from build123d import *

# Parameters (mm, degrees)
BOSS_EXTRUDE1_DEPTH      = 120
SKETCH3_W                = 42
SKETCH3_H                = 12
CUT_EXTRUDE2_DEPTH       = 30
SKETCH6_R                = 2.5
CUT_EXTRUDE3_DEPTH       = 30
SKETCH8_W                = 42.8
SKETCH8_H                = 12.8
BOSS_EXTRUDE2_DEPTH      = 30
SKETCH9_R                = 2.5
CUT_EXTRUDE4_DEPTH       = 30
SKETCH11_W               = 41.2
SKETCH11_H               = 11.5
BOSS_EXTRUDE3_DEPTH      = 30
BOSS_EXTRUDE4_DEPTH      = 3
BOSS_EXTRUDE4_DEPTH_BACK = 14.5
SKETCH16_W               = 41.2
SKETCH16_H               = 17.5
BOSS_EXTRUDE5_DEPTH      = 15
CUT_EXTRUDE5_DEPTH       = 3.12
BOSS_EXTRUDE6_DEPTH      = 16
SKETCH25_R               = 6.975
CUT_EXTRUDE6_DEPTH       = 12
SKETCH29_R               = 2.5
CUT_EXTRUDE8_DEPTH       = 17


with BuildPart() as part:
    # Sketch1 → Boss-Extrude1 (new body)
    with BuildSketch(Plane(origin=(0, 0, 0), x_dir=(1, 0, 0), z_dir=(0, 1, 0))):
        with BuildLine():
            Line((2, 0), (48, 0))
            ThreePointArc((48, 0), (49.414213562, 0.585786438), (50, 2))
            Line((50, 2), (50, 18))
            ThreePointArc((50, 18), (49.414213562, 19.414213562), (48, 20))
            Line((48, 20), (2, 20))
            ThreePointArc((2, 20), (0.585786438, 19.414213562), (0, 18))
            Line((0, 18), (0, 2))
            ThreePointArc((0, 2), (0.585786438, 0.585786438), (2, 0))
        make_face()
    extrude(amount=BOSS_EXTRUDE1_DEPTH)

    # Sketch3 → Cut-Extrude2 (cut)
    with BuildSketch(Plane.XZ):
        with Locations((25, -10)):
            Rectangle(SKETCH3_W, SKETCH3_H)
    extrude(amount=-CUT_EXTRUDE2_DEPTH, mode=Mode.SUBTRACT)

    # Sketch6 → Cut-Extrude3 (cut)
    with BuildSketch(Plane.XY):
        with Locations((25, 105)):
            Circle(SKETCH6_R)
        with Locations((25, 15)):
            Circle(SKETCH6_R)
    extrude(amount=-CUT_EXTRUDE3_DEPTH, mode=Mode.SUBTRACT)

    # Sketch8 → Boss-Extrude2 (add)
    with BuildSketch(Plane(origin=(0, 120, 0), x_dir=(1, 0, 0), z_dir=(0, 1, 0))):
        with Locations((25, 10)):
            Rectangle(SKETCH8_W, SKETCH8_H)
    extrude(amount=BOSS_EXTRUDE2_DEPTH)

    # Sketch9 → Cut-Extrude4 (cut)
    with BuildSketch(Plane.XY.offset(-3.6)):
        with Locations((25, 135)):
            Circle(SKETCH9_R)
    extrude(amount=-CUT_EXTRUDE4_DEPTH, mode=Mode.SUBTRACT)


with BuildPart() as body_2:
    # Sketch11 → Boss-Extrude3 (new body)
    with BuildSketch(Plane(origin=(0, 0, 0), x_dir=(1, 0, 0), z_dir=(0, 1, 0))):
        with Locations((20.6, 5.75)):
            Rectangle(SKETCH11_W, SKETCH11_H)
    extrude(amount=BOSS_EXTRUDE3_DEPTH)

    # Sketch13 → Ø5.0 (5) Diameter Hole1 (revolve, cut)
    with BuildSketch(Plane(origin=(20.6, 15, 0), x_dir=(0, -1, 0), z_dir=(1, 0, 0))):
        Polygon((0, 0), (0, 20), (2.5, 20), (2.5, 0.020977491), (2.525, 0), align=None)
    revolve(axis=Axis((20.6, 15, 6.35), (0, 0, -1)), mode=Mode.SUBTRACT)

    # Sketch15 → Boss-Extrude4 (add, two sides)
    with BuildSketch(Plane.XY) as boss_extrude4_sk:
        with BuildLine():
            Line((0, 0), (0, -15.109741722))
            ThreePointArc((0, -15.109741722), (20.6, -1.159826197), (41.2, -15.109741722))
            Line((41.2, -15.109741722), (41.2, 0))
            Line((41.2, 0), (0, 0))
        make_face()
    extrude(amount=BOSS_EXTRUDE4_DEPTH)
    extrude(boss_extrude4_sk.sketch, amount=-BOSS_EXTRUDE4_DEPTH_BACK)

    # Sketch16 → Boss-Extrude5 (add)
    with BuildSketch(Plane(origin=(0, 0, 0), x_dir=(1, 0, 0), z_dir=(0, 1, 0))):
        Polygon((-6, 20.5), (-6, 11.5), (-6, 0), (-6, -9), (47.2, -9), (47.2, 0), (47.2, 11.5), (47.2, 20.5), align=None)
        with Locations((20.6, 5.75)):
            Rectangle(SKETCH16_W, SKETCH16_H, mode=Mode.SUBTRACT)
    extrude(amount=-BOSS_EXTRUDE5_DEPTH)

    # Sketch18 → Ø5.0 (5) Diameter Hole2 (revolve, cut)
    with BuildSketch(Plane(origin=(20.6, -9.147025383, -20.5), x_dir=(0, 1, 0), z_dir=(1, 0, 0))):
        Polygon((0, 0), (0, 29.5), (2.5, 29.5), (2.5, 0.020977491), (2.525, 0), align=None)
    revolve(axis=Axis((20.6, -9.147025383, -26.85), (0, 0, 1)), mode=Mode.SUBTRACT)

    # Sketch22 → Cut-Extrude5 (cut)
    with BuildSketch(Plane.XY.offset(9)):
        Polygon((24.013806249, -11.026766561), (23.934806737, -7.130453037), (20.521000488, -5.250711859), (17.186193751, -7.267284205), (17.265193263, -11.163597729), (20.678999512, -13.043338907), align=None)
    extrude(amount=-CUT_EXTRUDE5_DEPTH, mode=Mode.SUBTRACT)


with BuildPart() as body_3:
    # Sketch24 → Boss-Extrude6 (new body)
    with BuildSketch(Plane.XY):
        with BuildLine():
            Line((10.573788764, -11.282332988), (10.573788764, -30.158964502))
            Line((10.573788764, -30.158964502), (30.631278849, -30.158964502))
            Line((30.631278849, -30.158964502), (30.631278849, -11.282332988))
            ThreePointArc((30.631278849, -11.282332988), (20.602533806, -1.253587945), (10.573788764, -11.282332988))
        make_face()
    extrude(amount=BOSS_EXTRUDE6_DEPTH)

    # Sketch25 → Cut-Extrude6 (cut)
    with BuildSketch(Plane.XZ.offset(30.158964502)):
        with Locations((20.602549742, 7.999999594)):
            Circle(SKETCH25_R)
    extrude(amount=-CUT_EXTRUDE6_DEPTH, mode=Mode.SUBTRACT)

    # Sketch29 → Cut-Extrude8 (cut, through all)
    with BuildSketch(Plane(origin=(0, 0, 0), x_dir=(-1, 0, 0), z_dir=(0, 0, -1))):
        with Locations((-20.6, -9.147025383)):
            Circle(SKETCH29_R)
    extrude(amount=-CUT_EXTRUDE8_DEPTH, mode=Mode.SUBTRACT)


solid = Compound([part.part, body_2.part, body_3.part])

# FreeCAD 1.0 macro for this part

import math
import FreeCAD as App
import Part
import Sketcher

V = App.Vector
Q = App.Units.Quantity


def add_polygon(sketch, points):
    """Adds a closed chain of lines whose ends are joined by coincident constraints."""
    first, n = sketch.GeometryCount, len(points)
    for a, b in zip(points, points[1:] + points[:1]):
        sketch.addGeometry(Part.LineSegment(App.Vector(*a, 0), App.Vector(*b, 0)), False)
    for i in range(n):
        sketch.addConstraint(Sketcher.Constraint("Coincident", first + i, 2, first + (i + 1) % n, 1))

doc = App.newDocument("Part")
body = doc.addObject("PartDesign::Body", "Body")

sketch1 = doc.addObject("Sketcher::SketchObject", "Sketch")
body.addObject(sketch1)
sketch1.AttachmentSupport = (doc.XZ_Plane, [""])
sketch1.MapMode = "FlatFace"
sketch1.addGeometry([
    Part.LineSegment(V(2, 0, 0), V(48, 0, 0)),
    Part.ArcOfCircle(Part.Circle(V(48, -2, 0), V(0, 0, 1), 2), math.radians(0), math.radians(90)),
    Part.LineSegment(V(50, -2, 0), V(50, -18, 0)),
    Part.ArcOfCircle(Part.Circle(V(48, -18, 0), V(0, 0, 1), 2), math.radians(-90), math.radians(0)),
    Part.LineSegment(V(48, -20, 0), V(2, -20, 0)),
    Part.ArcOfCircle(Part.Circle(V(2, -18, 0), V(0, 0, 1), 2), math.radians(-180), math.radians(-90)),
    Part.LineSegment(V(0, -18, 0), V(0, -2, 0)),
    Part.ArcOfCircle(Part.Circle(V(2, -2, 0), V(0, 0, 1), 2), math.radians(90), math.radians(180)),
], False)
sketch1.addConstraint([
    Sketcher.Constraint("Tangent", 0, 2, 1, 2),
    Sketcher.Constraint("Tangent", 1, 1, 2, 1),
    Sketcher.Constraint("Tangent", 2, 2, 3, 2),
    Sketcher.Constraint("Tangent", 3, 1, 4, 1),
    Sketcher.Constraint("Tangent", 4, 2, 5, 2),
    Sketcher.Constraint("Tangent", 5, 1, 6, 1),
    Sketcher.Constraint("Tangent", 6, 2, 7, 2),
    Sketcher.Constraint("Tangent", 7, 1, 0, 1),
    Sketcher.Constraint("Horizontal", 0),
    Sketcher.Constraint("Vertical", 2),
    Sketcher.Constraint("Horizontal", 4),
    Sketcher.Constraint("Vertical", 6),
    Sketcher.Constraint("Equal", 1, 3),
    Sketcher.Constraint("Equal", 3, 5),
    Sketcher.Constraint("Equal", 5, 7),
    Sketcher.Constraint("PointOnObject", 0, 2, -1),
    Sketcher.Constraint("PointOnObject", 5, 1, -2),
    Sketcher.Constraint("Radius", 1, Q("2 mm")),
    Sketcher.Constraint("DistanceX", 0, 1, 0, 2, Q("46 mm")),
    Sketcher.Constraint("DistanceY", 2, 2, 2, 1, Q("16 mm")),
])
pad1 = doc.addObject("PartDesign::Pad", "Pad")
body.addObject(pad1)
pad1.Profile = sketch1
pad1.Length = 120
pad1.Reversed = True

sketch2 = doc.addObject("Sketcher::SketchObject", "Sketch001")
body.addObject(sketch2)
sketch2.AttachmentSupport = (doc.XZ_Plane, [""])
sketch2.MapMode = "FlatFace"
add_polygon(sketch2, [(4, -4), (4, -16), (46, -16), (46, -4)])
sketch2.addConstraint([
    Sketcher.Constraint("Vertical", 0),
    Sketcher.Constraint("Horizontal", 1),
    Sketcher.Constraint("Vertical", 2),
    Sketcher.Constraint("Horizontal", 3),
    Sketcher.Constraint("DistanceX", 1, 1, 1, 2, Q("42 mm")),
    Sketcher.Constraint("DistanceY", 0, 2, 0, 1, Q("12 mm")),
    Sketcher.Constraint("DistanceX", -1, 1, 0, 2, Q("4 mm")),
    Sketcher.Constraint("DistanceY", 0, 2, -1, 1, Q("16 mm")),
])
pocket1 = doc.addObject("PartDesign::Pocket", "Pocket")
body.addObject(pocket1)
pocket1.Profile = sketch2
pocket1.Length = 30

sketch3 = doc.addObject("Sketcher::SketchObject", "Sketch002")
body.addObject(sketch3)
sketch3.AttachmentSupport = (doc.XY_Plane, [""])
sketch3.MapMode = "FlatFace"
sketch3.addGeometry([
    Part.Circle(V(25, 105, 0), V(0, 0, 1), 2.5),
    Part.Circle(V(25, 15, 0), V(0, 0, 1), 2.5),
], False)
sketch3.addConstraint([
    Sketcher.Constraint("Equal", 0, 1),
    Sketcher.Constraint("Vertical", 0, 3, 1, 3),
    Sketcher.Constraint("Diameter", 0, Q("5 mm")),
    Sketcher.Constraint("DistanceX", -1, 1, 0, 3, Q("25 mm")),
    Sketcher.Constraint("DistanceY", -1, 1, 0, 3, Q("105 mm")),
    Sketcher.Constraint("DistanceY", -1, 1, 1, 3, Q("15 mm")),
])
pocket2 = doc.addObject("PartDesign::Pocket", "Pocket001")
body.addObject(pocket2)
pocket2.Profile = sketch3
pocket2.Length = 30

sketch4 = doc.addObject("Sketcher::SketchObject", "Sketch003")
body.addObject(sketch4)
sketch4.AttachmentSupport = (doc.XZ_Plane, [""])
sketch4.MapMode = "FlatFace"
sketch4.AttachmentOffset = App.Placement(V(0, 0, -120), App.Rotation())
add_polygon(sketch4, [(4, -16), (4, -4), (46, -4), (46, -16)])
sketch4.addConstraint([
    Sketcher.Constraint("Vertical", 0),
    Sketcher.Constraint("Horizontal", 1),
    Sketcher.Constraint("Vertical", 2),
    Sketcher.Constraint("Horizontal", 3),
    Sketcher.Constraint("DistanceX", 1, 1, 1, 2, Q("42.8 mm")),
    Sketcher.Constraint("DistanceY", 0, 1, 0, 2, Q("12.8 mm")),
    Sketcher.Constraint("DistanceX", -1, 1, 0, 2, Q("3.6 mm")),
    Sketcher.Constraint("DistanceY", 0, 2, -1, 1, Q("3.6 mm")),
])
pad2 = doc.addObject("PartDesign::Pad", "Pad001")
body.addObject(pad2)
pad2.Profile = sketch4
pad2.Length = 30
pad2.Reversed = True

sketch5 = doc.addObject("Sketcher::SketchObject", "Sketch004")
body.addObject(sketch5)
sketch5.AttachmentSupport = (doc.XY_Plane, [""])
sketch5.MapMode = "FlatFace"
sketch5.AttachmentOffset = App.Placement(V(0, 0, -3.6), App.Rotation())
sketch5.addGeometry(Part.Circle(V(25, 135, 0), V(0, 0, 1), 2.5), False)
sketch5.addConstraint([
    Sketcher.Constraint("Diameter", 0, Q("5 mm")),
    Sketcher.Constraint("DistanceX", -1, 1, 0, 3, Q("25 mm")),
    Sketcher.Constraint("DistanceY", -1, 1, 0, 3, Q("135 mm")),
])
pocket3 = doc.addObject("PartDesign::Pocket", "Pocket002")
body.addObject(pocket3)
pocket3.Profile = sketch5
pocket3.Length = 30
body2 = doc.addObject("PartDesign::Body", "Body001")

sketch6 = doc.addObject("Sketcher::SketchObject", "Sketch005")
body2.addObject(sketch6)
sketch6.AttachmentSupport = (doc.getObject("XZ_Plane001"), [""])
sketch6.MapMode = "FlatFace"
add_polygon(sketch6, [(0, -12), (0, 0), (41, 0), (41, -12)])
sketch6.addConstraint([
    Sketcher.Constraint("Vertical", 0),
    Sketcher.Constraint("Horizontal", 1),
    Sketcher.Constraint("Vertical", 2),
    Sketcher.Constraint("Horizontal", 3),
    Sketcher.Constraint("Coincident", 0, 2, -1, 1),
    Sketcher.Constraint("DistanceX", 1, 1, 1, 2, Q("41.2 mm")),
    Sketcher.Constraint("DistanceY", 0, 1, 0, 2, Q("11.5 mm")),
])
pad3 = doc.addObject("PartDesign::Pad", "Pad002")
body2.addObject(pad3)
pad3.Profile = sketch6
pad3.Length = 30
pad3.Reversed = True

sketch7 = doc.addObject("Sketcher::SketchObject", "Sketch006")
body2.addObject(sketch7)
sketch7.AttachmentSupport = (doc.getObject("YZ_Plane001"), [""])
sketch7.MapMode = "FlatFace"
sketch7.AttachmentOffset = App.Placement(V(0, 0, 20.6), App.Rotation())
add_polygon(sketch7, [(15, -20), (15, 0), (12.475, 0), (12.5, -0.021), (12.5, -20)])
sketch7.addGeometry(Part.LineSegment(V(15, 0, 0), V(15, -20, 0)), True)
sketch7.addConstraint([
    Sketcher.Constraint("Vertical", 0),
    Sketcher.Constraint("Horizontal", 1),
    Sketcher.Constraint("Vertical", 3),
    Sketcher.Constraint("Horizontal", 4),
    Sketcher.Constraint("Vertical", 5),
    Sketcher.Constraint("Coincident", 5, 1, 0, 2),
    Sketcher.Constraint("PointOnObject", 0, 2, -1),
    Sketcher.Constraint("Horizontal", 3, 2, 5, 2),
    Sketcher.Constraint("DistanceY", 0, 1, 0, 2, Q("20 mm")),
    Sketcher.Constraint("Angle", 2, Q("-40 deg")),
    Sketcher.Constraint("DistanceX", 4, 1, 4, 2, Q("2.5 mm")),
    Sketcher.Constraint("DistanceX", -1, 1, 0, 2, Q("15 mm")),
    Sketcher.Constraint("DistanceX", 1, 2, 1, 1, Q("2.525 mm")),
])
groove = doc.addObject("PartDesign::Groove", "Groove")
body2.addObject(groove)
groove.Profile = sketch7
groove.ReferenceAxis = (sketch7, ["Axis0"])
groove.Angle = 360

sketch8 = doc.addObject("Sketcher::SketchObject", "Sketch007")
body2.addObject(sketch8)
sketch8.AttachmentSupport = (doc.getObject("XY_Plane001"), [""])
sketch8.MapMode = "FlatFace"
sketch8.addGeometry([
    Part.LineSegment(V(0, 0, 0), V(0, -15, 0)),
    Part.ArcOfCircle(Part.Circle(V(21, -23, 0), V(0, 0, 1), 22), math.radians(22), math.radians(158)),
    Part.LineSegment(V(41, -15, 0), V(41, 0, 0)),
    Part.LineSegment(V(41, 0, 0), V(0, 0, 0)),
], False)
sketch8.addConstraint([
    Sketcher.Constraint("Coincident", 0, 2, 1, 2),
    Sketcher.Constraint("Coincident", 1, 1, 2, 1),
    Sketcher.Constraint("Coincident", 2, 2, 3, 1),
    Sketcher.Constraint("Coincident", 3, 2, 0, 1),
    Sketcher.Constraint("Vertical", 0),
    Sketcher.Constraint("Vertical", 2),
    Sketcher.Constraint("Horizontal", 3),
    Sketcher.Constraint("Coincident", 3, 2, -1, 1),
    Sketcher.Constraint("Horizontal", 0, 2, 1, 1),
    Sketcher.Constraint("DistanceX", 3, 2, 3, 1, Q("41.2 mm")),
    Sketcher.Constraint("Radius", 1, Q("22.185086 mm")),
    Sketcher.Constraint("DistanceY", 0, 2, 0, 1, Q("15.109742 mm")),
])
pad4 = doc.addObject("PartDesign::Pad", "Pad003")
body2.addObject(pad4)
pad4.Profile = sketch8
pad4.Type = "TwoLengths"
pad4.Length = 3
pad4.Length2 = 14.5

sketch9 = doc.addObject("Sketcher::SketchObject", "Sketch008")
body2.addObject(sketch9)
sketch9.AttachmentSupport = (doc.getObject("XZ_Plane001"), [""])
sketch9.MapMode = "FlatFace"
add_polygon(sketch9, [(-6, -20), (-6, 9), (47, 9), (47, -20)])
add_polygon(sketch9, [(41, 3), (0, 3), (0, -14), (41, -14)])
sketch9.addConstraint([
    Sketcher.Constraint("Vertical", 0),
    Sketcher.Constraint("Horizontal", 1),
    Sketcher.Constraint("Vertical", 2),
    Sketcher.Constraint("Horizontal", 3),
    Sketcher.Constraint("Horizontal", 4),
    Sketcher.Constraint("Vertical", 5),
    Sketcher.Constraint("Horizontal", 6),
    Sketcher.Constraint("Vertical", 7),
    Sketcher.Constraint("PointOnObject", 4, 2, -2),
    Sketcher.Constraint("DistanceX", 1, 1, 1, 2, Q("53.2 mm")),
    Sketcher.Constraint("DistanceX", 4, 2, 4, 1, Q("41.2 mm")),
    Sketcher.Constraint("DistanceY", 0, 1, 0, 2, Q("29.5 mm")),
    Sketcher.Constraint("DistanceY", 5, 2, 5, 1, Q("17.5 mm")),
    Sketcher.Constraint("DistanceX", 0, 2, -1, 1, Q("6 mm")),
    Sketcher.Constraint("DistanceY", -1, 1, 0, 2, Q("9 mm")),
    Sketcher.Constraint("DistanceY", -1, 1, 4, 2, Q("3 mm")),
])
pad5 = doc.addObject("PartDesign::Pad", "Pad004")
body2.addObject(pad5)
pad5.Profile = sketch9
pad5.Length = 15

sketch10 = doc.addObject("Sketcher::SketchObject", "Sketch009")
body2.addObject(sketch10)
sketch10.AttachmentSupport = (doc.getObject("YZ_Plane001"), [""])
sketch10.MapMode = "FlatFace"
sketch10.AttachmentOffset = App.Placement(V(0, 0, 20.6), App.Rotation())
add_polygon(sketch10, [(-9.147, 9), (-9.147, -20.5), (-6.622, -20.5), (-6.647, -20.479), (-6.647, 9)])
sketch10.addGeometry(Part.LineSegment(V(-9.147, -20.5, 0), V(-9.147, 9, 0)), True)
sketch10.addConstraint([
    Sketcher.Constraint("Vertical", 0),
    Sketcher.Constraint("Horizontal", 1),
    Sketcher.Constraint("Vertical", 3),
    Sketcher.Constraint("Horizontal", 4),
    Sketcher.Constraint("Vertical", 5),
    Sketcher.Constraint("Coincident", 5, 1, 0, 2),
    Sketcher.Constraint("Horizontal", 3, 2, 5, 2),
    Sketcher.Constraint("Angle", 2, Q("140 deg")),
    Sketcher.Constraint("DistanceX", 4, 2, 4, 1, Q("2.5 mm")),
    Sketcher.Constraint("DistanceY", 0, 2, 0, 1, Q("29.5 mm")),
    Sketcher.Constraint("DistanceY", -1, 1, 3, 2, Q("9 mm")),
    Sketcher.Constraint("DistanceX", 1, 1, 1, 2, Q("2.525 mm")),
    Sketcher.Constraint("DistanceX", 0, 2, -1, 1, Q("9.147025 mm")),
])
groove2 = doc.addObject("PartDesign::Groove", "Groove001")
body2.addObject(groove2)
groove2.Profile = sketch10
groove2.ReferenceAxis = (sketch10, ["Axis0"])
groove2.Angle = 360

sketch11 = doc.addObject("Sketcher::SketchObject", "Sketch010")
body2.addObject(sketch11)
sketch11.AttachmentSupport = (doc.getObject("XY_Plane001"), [""])
sketch11.MapMode = "FlatFace"
sketch11.AttachmentOffset = App.Placement(V(0, 0, 9), App.Rotation())
add_polygon(sketch11, [(24, -11), (23.9, -7.1), (20.5, -5.3), (17.2, -7.3), (17.3, -11.2), (20.7, -13)])
sketch11.addConstraint([
    Sketcher.Constraint("Parallel", 0, 3),
    Sketcher.Constraint("Parallel", 1, 4),
    Sketcher.Constraint("Parallel", 2, 5),
    Sketcher.Constraint("Equal", 0, 1),
    Sketcher.Constraint("Equal", 1, 2),
    Sketcher.Constraint("Equal", 2, 3),
    Sketcher.Constraint("DistanceX", -1, 1, 1, 2, Q("20.521 mm")),
    Sketcher.Constraint("DistanceX", -1, 1, 4, 2, Q("20.679 mm")),
    Sketcher.Constraint("DistanceX", 2, 2, 3, 2, Q("0.079 mm")),
    Sketcher.Constraint("DistanceY", 1, 2, -1, 1, Q("5.250712 mm")),
    Sketcher.Constraint("DistanceY", 4, 2, -1, 1, Q("13.043339 mm")),
    Sketcher.Constraint("DistanceY", 0, 2, 1, 2, Q("1.879741 mm")),
])
pocket4 = doc.addObject("PartDesign::Pocket", "Pocket003")
body2.addObject(pocket4)
pocket4.Profile = sketch11
pocket4.Length = 3.12
body3 = doc.addObject("PartDesign::Body", "Body002")

sketch12 = doc.addObject("Sketcher::SketchObject", "Sketch011")
body3.addObject(sketch12)
sketch12.AttachmentSupport = (doc.getObject("XY_Plane002"), [""])
sketch12.MapMode = "FlatFace"
sketch12.addGeometry([
    Part.LineSegment(V(11, -11, 0), V(11, -30, 0)),
    Part.LineSegment(V(11, -30, 0), V(31, -30, 0)),
    Part.LineSegment(V(31, -30, 0), V(31, -11, 0)),
    Part.ArcOfCircle(Part.Circle(V(21, -11, 0), V(0, 0, 1), 10), math.radians(0), math.radians(180)),
], False)
sketch12.addConstraint([
    Sketcher.Constraint("Coincident", 0, 2, 1, 1),
    Sketcher.Constraint("Coincident", 1, 2, 2, 1),
    Sketcher.Constraint("Tangent", 2, 2, 3, 1),
    Sketcher.Constraint("Tangent", 3, 2, 0, 1),
    Sketcher.Constraint("Vertical", 0),
    Sketcher.Constraint("Horizontal", 1),
    Sketcher.Constraint("Vertical", 2),
    Sketcher.Constraint("Radius", 3, Q("10.028745 mm")),
    Sketcher.Constraint("DistanceY", 0, 2, 0, 1, Q("18.876632 mm")),
    Sketcher.Constraint("DistanceX", -1, 1, 0, 2, Q("10.573789 mm")),
    Sketcher.Constraint("DistanceY", 3, 3, -1, 1, Q("11.282333 mm")),
])
pad6 = doc.addObject("PartDesign::Pad", "Pad005")
body3.addObject(pad6)
pad6.Profile = sketch12
pad6.Length = 16

sketch13 = doc.addObject("Sketcher::SketchObject", "Sketch012")
body3.addObject(sketch13)
sketch13.AttachmentSupport = (doc.getObject("XZ_Plane002"), [""])
sketch13.MapMode = "FlatFace"
sketch13.AttachmentOffset = App.Placement(V(0, 0, 30.158965), App.Rotation())
sketch13.addGeometry(Part.Circle(V(21, 8, 0), V(0, 0, 1), 7), False)
sketch13.addConstraint([
    Sketcher.Constraint("Diameter", 0, Q("13.95 mm")),
    Sketcher.Constraint("DistanceY", -1, 1, 0, 3, Q("8 mm")),
    Sketcher.Constraint("DistanceX", -1, 1, 0, 3, Q("20.60255 mm")),
])
pocket5 = doc.addObject("PartDesign::Pocket", "Pocket004")
body3.addObject(pocket5)
pocket5.Profile = sketch13
pocket5.Length = 12

sketch14 = doc.addObject("Sketcher::SketchObject", "Sketch013")
body3.addObject(sketch14)
sketch14.AttachmentSupport = (doc.getObject("XY_Plane002"), [""])
sketch14.MapMode = "FlatFace"
sketch14.addGeometry(Part.Circle(V(20.6, -9.1, 0), V(0, 0, 1), 2.5), False)
sketch14.addConstraint([
    Sketcher.Constraint("Diameter", 0, Q("5 mm")),
    Sketcher.Constraint("DistanceX", -1, 1, 0, 3, Q("20.6 mm")),
    Sketcher.Constraint("DistanceY", 0, 3, -1, 1, Q("9.147025 mm")),
])
pocket6 = doc.addObject("PartDesign::Pocket", "Pocket005")
body3.addObject(pocket6)
pocket6.Profile = sketch14
pocket6.Type = "ThroughAll"
pocket6.Reversed = True

doc.recompute()
